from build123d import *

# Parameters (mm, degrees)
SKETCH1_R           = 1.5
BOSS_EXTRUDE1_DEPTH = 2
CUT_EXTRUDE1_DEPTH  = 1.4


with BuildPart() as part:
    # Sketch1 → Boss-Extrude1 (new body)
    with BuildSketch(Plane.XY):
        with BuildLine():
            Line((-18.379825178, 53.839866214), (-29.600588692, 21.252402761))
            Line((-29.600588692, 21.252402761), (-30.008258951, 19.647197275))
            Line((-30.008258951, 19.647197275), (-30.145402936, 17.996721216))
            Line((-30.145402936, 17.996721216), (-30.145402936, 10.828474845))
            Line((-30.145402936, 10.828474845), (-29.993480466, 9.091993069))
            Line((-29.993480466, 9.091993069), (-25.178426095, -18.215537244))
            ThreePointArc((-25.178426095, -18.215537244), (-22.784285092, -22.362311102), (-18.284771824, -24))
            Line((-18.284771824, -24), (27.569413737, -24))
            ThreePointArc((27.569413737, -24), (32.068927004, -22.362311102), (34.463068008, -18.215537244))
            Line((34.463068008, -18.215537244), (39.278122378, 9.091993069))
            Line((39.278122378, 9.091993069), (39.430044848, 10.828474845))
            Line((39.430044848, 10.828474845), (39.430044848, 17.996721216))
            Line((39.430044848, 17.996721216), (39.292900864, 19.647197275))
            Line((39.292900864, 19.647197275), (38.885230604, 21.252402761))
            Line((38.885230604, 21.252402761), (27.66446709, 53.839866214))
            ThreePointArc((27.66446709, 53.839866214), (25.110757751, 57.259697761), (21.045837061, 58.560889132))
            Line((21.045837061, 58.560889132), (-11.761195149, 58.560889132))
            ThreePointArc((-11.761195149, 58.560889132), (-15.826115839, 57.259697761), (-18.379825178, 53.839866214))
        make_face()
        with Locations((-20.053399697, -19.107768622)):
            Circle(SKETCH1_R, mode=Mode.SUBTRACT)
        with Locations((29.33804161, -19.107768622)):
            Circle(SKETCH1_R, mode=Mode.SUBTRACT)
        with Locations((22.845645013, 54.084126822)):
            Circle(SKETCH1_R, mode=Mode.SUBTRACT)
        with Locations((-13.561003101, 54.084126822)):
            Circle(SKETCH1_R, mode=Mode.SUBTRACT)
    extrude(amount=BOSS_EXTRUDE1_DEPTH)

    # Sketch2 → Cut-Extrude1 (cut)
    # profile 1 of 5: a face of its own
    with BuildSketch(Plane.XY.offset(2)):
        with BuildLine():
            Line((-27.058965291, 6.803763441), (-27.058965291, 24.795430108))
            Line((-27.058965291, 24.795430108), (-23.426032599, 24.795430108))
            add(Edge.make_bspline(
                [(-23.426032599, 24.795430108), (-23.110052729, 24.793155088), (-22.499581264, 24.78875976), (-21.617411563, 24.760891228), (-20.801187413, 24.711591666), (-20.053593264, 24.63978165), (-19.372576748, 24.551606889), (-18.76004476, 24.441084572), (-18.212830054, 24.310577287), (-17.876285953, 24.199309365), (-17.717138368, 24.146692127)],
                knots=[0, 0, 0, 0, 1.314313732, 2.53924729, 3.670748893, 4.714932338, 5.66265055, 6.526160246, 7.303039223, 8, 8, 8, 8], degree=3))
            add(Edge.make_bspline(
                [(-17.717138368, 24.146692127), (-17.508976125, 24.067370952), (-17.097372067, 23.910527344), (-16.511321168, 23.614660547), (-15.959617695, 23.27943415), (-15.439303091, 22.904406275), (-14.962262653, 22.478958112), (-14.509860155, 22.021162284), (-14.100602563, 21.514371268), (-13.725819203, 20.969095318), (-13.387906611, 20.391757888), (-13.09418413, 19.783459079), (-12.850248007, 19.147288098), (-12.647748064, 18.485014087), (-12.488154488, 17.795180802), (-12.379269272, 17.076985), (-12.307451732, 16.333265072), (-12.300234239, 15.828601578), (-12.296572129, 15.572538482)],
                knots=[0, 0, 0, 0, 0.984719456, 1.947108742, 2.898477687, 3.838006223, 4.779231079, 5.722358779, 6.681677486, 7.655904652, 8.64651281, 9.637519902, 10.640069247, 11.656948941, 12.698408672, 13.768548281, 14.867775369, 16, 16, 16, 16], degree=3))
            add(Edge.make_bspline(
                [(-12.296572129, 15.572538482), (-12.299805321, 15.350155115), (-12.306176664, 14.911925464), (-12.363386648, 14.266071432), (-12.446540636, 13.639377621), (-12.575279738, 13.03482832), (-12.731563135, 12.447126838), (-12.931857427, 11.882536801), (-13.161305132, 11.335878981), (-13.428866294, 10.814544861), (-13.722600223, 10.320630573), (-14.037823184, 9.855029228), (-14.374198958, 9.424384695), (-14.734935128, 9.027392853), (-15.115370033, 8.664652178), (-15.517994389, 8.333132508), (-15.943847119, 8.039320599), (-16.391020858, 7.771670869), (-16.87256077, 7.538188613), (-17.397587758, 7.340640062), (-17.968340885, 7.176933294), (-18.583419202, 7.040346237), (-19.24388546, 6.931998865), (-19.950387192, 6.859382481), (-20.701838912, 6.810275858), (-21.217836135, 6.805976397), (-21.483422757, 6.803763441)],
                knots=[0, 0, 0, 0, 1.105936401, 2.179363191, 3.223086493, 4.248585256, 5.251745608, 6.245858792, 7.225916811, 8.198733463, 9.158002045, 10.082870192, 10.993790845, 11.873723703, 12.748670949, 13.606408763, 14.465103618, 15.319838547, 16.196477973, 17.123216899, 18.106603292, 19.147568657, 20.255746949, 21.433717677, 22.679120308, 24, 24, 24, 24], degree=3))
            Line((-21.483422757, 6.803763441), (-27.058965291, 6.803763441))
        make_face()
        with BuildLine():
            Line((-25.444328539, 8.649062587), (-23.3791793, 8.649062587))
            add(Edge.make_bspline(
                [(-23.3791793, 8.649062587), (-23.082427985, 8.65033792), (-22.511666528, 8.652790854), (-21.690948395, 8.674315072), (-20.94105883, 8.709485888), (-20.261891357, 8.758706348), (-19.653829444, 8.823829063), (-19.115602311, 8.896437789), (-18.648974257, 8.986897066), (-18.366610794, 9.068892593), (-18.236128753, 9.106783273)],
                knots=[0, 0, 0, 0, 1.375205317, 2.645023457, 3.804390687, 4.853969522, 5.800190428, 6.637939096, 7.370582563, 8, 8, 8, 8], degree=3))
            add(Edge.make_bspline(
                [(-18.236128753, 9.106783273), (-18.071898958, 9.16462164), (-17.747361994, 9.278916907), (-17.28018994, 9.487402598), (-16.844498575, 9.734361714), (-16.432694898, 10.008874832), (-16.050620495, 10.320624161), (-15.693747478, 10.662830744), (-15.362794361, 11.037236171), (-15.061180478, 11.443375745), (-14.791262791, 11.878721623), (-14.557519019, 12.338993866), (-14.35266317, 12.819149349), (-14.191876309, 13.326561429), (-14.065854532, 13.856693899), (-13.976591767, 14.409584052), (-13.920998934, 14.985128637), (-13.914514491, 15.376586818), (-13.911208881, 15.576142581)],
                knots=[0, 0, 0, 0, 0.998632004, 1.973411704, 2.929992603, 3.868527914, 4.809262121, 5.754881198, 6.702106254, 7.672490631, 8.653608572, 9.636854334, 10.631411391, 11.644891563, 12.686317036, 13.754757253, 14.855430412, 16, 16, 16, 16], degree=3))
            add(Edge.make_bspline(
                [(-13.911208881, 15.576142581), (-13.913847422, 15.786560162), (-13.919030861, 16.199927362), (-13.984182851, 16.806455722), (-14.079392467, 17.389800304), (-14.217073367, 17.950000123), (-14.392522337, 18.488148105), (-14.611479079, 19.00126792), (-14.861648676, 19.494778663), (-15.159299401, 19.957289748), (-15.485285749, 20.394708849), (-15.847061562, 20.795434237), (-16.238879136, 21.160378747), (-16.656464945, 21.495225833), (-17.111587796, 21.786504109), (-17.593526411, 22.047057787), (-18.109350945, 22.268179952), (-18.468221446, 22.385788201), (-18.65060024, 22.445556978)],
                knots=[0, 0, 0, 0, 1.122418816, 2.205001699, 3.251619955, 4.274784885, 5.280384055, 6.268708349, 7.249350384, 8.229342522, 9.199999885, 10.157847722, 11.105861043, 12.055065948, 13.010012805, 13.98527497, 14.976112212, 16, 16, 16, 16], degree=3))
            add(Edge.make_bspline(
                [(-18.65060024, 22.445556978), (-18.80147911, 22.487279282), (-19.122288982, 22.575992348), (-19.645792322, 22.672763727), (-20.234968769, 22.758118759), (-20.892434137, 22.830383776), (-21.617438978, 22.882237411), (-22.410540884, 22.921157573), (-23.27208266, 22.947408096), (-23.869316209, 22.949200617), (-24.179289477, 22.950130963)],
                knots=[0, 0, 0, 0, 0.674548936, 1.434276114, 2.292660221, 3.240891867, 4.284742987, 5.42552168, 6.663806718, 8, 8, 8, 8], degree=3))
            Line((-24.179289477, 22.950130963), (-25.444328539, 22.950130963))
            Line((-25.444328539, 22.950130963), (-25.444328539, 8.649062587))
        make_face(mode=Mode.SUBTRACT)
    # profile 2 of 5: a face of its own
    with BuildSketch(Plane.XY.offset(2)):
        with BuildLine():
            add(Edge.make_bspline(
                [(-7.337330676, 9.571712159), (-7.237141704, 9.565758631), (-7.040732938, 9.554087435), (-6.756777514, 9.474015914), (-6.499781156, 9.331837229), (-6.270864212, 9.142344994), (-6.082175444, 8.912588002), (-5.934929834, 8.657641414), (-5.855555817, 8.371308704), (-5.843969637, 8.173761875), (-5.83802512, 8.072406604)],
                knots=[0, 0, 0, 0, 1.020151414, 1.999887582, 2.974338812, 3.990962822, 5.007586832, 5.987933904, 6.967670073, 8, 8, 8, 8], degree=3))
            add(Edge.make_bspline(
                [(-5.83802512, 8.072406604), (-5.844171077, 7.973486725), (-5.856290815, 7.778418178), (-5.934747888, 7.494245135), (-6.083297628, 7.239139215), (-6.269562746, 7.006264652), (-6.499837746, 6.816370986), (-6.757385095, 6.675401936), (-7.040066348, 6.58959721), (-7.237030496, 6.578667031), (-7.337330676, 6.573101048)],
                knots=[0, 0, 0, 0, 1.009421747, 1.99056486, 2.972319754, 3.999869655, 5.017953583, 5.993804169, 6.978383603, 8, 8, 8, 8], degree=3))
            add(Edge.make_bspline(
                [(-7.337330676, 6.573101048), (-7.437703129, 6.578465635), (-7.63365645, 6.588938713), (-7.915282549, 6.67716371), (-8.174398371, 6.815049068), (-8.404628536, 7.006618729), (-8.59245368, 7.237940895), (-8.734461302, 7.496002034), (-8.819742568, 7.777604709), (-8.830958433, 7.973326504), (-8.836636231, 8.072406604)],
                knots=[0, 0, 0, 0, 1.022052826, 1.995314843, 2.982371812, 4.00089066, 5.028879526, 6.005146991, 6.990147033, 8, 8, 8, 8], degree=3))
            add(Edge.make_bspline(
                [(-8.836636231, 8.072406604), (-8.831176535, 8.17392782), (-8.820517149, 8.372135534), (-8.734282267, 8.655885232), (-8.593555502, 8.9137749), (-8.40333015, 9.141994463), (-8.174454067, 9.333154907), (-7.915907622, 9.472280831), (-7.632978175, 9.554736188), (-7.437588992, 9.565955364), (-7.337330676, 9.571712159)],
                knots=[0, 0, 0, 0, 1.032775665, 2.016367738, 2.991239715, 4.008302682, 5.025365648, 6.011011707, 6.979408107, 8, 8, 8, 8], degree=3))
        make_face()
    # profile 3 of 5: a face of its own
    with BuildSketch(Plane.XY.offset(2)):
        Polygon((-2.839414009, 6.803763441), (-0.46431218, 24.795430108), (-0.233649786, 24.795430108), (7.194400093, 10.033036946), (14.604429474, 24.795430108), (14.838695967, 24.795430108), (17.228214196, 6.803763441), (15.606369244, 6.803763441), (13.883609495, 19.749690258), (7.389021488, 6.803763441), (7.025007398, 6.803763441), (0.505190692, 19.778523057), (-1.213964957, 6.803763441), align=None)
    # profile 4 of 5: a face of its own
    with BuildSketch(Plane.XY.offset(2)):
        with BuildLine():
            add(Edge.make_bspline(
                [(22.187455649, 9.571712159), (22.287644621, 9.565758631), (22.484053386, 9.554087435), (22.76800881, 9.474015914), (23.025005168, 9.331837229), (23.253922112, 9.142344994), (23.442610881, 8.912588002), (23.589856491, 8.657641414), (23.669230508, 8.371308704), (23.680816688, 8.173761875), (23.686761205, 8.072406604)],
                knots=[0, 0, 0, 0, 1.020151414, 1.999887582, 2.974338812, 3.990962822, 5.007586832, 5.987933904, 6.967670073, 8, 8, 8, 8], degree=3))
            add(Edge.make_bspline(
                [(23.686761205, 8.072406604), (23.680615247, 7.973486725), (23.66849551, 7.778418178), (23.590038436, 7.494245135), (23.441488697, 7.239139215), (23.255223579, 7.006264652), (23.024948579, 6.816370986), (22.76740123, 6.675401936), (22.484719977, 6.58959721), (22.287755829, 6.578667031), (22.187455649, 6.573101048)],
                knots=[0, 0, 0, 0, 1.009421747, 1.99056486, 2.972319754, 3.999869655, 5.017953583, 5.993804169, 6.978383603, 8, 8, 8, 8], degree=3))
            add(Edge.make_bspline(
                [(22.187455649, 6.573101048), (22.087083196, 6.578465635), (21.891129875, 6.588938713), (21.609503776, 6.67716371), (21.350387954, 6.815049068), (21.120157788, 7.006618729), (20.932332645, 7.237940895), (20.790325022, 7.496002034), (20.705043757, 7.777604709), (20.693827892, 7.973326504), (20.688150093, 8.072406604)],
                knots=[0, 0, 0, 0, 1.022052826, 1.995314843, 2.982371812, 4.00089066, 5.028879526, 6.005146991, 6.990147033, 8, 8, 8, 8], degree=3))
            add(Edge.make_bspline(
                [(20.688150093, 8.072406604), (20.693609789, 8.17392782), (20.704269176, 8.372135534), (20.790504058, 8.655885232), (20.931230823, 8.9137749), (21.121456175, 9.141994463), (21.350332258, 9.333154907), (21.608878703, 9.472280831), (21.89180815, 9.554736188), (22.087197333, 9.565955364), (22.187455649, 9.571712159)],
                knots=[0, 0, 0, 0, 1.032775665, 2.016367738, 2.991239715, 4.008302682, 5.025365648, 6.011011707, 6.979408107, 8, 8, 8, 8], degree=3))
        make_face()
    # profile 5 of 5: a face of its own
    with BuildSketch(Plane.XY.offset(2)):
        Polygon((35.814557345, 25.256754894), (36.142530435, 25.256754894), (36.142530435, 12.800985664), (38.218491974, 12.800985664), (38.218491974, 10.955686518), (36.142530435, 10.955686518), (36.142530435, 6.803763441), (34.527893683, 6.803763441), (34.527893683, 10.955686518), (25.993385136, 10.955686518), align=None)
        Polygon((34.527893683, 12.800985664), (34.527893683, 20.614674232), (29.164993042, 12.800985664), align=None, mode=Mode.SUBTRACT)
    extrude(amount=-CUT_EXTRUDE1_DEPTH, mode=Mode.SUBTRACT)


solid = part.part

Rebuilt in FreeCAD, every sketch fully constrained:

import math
import FreeCAD as App
import Part
import Sketcher
from FreeCAD import Vector
Q = App.Units.Quantity

doc = App.newDocument("Part")
body = doc.addObject("PartDesign::Body", "Body")

# Sketch on XY plane
sketch1 = body.newObject("Sketcher::SketchObject", "Sketch")
sketch1.AttachmentSupport = (doc.getObject("XY_Plane"), [""])
sketch1.MapMode = "FlatFace"
sketch1.addGeometry(Part.LineSegment(Vector(-18.379825, 53.839866, 0), Vector(-29.600589, 21.252403, 0)), False)
sketch1.addGeometry(Part.LineSegment(Vector(-29.600589, 21.252403, 0), Vector(-30.008259, 19.647197, 0)), False)
sketch1.addGeometry(Part.LineSegment(Vector(-30.008259, 19.647197, 0), Vector(-30.145403, 17.996721, 0)), False)
sketch1.addGeometry(Part.LineSegment(Vector(-30.145403, 17.996721, 0), Vector(-30.145403, 10.828475, 0)), False)
sketch1.addGeometry(Part.LineSegment(Vector(-30.145403, 10.828475, 0), Vector(-29.99348, 9.091993, 0)), False)
sketch1.addGeometry(Part.LineSegment(Vector(-29.99348, 9.091993, 0), Vector(-25.178426, -18.215537, 0)), False)
sketch1.addGeometry(Part.ArcOfCircle(Part.Circle(Vector(-18.284772, -17, 0), Vector(0, 0, 1), 7), math.radians(-170), math.radians(-90)), False)
sketch1.addGeometry(Part.LineSegment(Vector(-18.284772, -24, 0), Vector(27.569414, -24, 0)), False)
sketch1.addGeometry(Part.ArcOfCircle(Part.Circle(Vector(27.569414, -17, 0), Vector(0, 0, 1), 7), math.radians(-90), math.radians(-10)), False)
sketch1.addGeometry(Part.LineSegment(Vector(34.463068, -18.215537, 0), Vector(39.278122, 9.091993, 0)), False)
sketch1.addGeometry(Part.LineSegment(Vector(39.278122, 9.091993, 0), Vector(39.430045, 10.828475, 0)), False)
sketch1.addGeometry(Part.LineSegment(Vector(39.430045, 10.828475, 0), Vector(39.430045, 17.996721, 0)), False)
sketch1.addGeometry(Part.LineSegment(Vector(39.430045, 17.996721, 0), Vector(39.292901, 19.647197, 0)), False)
sketch1.addGeometry(Part.LineSegment(Vector(39.292901, 19.647197, 0), Vector(38.885231, 21.252403, 0)), False)
sketch1.addGeometry(Part.LineSegment(Vector(38.885231, 21.252403, 0), Vector(27.664467, 53.839866, 0)), False)
sketch1.addGeometry(Part.ArcOfCircle(Part.Circle(Vector(21.045837, 51.560889, 0), Vector(0, 0, 1), 7), math.radians(19), math.radians(90)), False)
sketch1.addGeometry(Part.LineSegment(Vector(21.045837, 58.560889, 0), Vector(-11.761195, 58.560889, 0)), False)
sketch1.addGeometry(Part.ArcOfCircle(Part.Circle(Vector(-11.761195, 51.560889, 0), Vector(0, 0, 1), 7), math.radians(90), math.radians(161)), False)
sketch1.addGeometry(Part.Circle(Vector(-20.0534, -19.107769, 0), Vector(0, 0, 1), 1.5), False)
sketch1.addGeometry(Part.Circle(Vector(29.338042, -19.107769, 0), Vector(0, 0, 1), 1.5), False)
sketch1.addGeometry(Part.Circle(Vector(-13.561003, 54.084127, 0), Vector(0, 0, 1), 1.5), False)
sketch1.addGeometry(Part.Circle(Vector(22.845645, 54.084127, 0), Vector(0, 0, 1), 1.5), False)
sketch1.addConstraint(Sketcher.Constraint("Coincident", 0, 2, 1, 1))
sketch1.addConstraint(Sketcher.Constraint("Coincident", 1, 2, 2, 1))
sketch1.addConstraint(Sketcher.Constraint("Coincident", 2, 2, 3, 1))
sketch1.addConstraint(Sketcher.Constraint("Coincident", 3, 2, 4, 1))
sketch1.addConstraint(Sketcher.Constraint("Coincident", 4, 2, 5, 1))
sketch1.addConstraint(Sketcher.Constraint("Tangent", 5, 2, 6, 1))
sketch1.addConstraint(Sketcher.Constraint("Tangent", 6, 2, 7, 1))
sketch1.addConstraint(Sketcher.Constraint("Tangent", 7, 2, 8, 1))
sketch1.addConstraint(Sketcher.Constraint("Tangent", 8, 2, 9, 1))
sketch1.addConstraint(Sketcher.Constraint("Coincident", 9, 2, 10, 1))
sketch1.addConstraint(Sketcher.Constraint("Coincident", 10, 2, 11, 1))
sketch1.addConstraint(Sketcher.Constraint("Coincident", 11, 2, 12, 1))
sketch1.addConstraint(Sketcher.Constraint("Coincident", 12, 2, 13, 1))
sketch1.addConstraint(Sketcher.Constraint("Coincident", 13, 2, 14, 1))
sketch1.addConstraint(Sketcher.Constraint("Tangent", 14, 2, 15, 1))
sketch1.addConstraint(Sketcher.Constraint("Tangent", 15, 2, 16, 1))
sketch1.addConstraint(Sketcher.Constraint("Tangent", 16, 2, 17, 1))
sketch1.addConstraint(Sketcher.Constraint("Tangent", 17, 2, 0, 1))
sketch1.addConstraint(Sketcher.Constraint("Vertical", 3))
sketch1.addConstraint(Sketcher.Constraint("Horizontal", 7))
sketch1.addConstraint(Sketcher.Constraint("Vertical", 11))
sketch1.addConstraint(Sketcher.Constraint("Horizontal", 16))
sketch1.addConstraint(Sketcher.Constraint("Equal", 6, 8))
sketch1.addConstraint(Sketcher.Constraint("Equal", 8, 15))
sketch1.addConstraint(Sketcher.Constraint("Equal", 15, 17))
sketch1.addConstraint(Sketcher.Constraint("Equal", 18, 19))
sketch1.addConstraint(Sketcher.Constraint("Equal", 19, 20))
sketch1.addConstraint(Sketcher.Constraint("Equal", 20, 21))
sketch1.addConstraint(Sketcher.Constraint("Horizontal", 18, 3, 19, 3))
sketch1.addConstraint(Sketcher.Constraint("Horizontal", 20, 3, 21, 3))
sketch1.addConstraint(Sketcher.Constraint("Horizontal", 5, 2, 8, 2))
sketch1.addConstraint(Sketcher.Constraint("Horizontal", 4, 2, 9, 2))
sketch1.addConstraint(Sketcher.Constraint("Horizontal", 3, 2, 10, 2))
sketch1.addConstraint(Sketcher.Constraint("Horizontal", 2, 2, 11, 2))
sketch1.addConstraint(Sketcher.Constraint("Horizontal", 1, 2, 12, 2))
sketch1.addConstraint(Sketcher.Constraint("Horizontal", 0, 2, 13, 2))
sketch1.addConstraint(Sketcher.Constraint("Horizontal", 14, 2, 17, 2))
sketch1.addConstraint(Sketcher.Constraint("Equal", 1, 2))
sketch1.addConstraint(Sketcher.Constraint("Equal", 4, 10))
sketch1.addConstraint(Sketcher.Constraint("Equal", 2, 12))
sketch1.addConstraint(Sketcher.Constraint("Equal", 12, 13))
sketch1.addConstraint(Sketcher.Constraint("Diameter", 18, Q("3 mm")))
sketch1.addConstraint(Sketcher.Constraint("Radius", 6, Q("7 mm")))
sketch1.addConstraint(Sketcher.Constraint("Angle", 0, Q("-109 deg")))
sketch1.addConstraint(Sketcher.Constraint("Angle", 4, Q("-85 deg")))
sketch1.addConstraint(Sketcher.Constraint("Angle", 5, Q("-80 deg")))
sketch1.addConstraint(Sketcher.Constraint("DistanceY", 6, 3, -1, 1, Q("17 mm")))
sketch1.addConstraint(Sketcher.Constraint("Angle", 1, Q("-104.25 deg")))
sketch1.addConstraint(Sketcher.Constraint("Angle", 2, Q("-94.75 deg")))
sketch1.addConstraint(Sketcher.Constraint("DistanceX", 18, 3, -1, 1, Q("20.0534 mm")))
sketch1.addConstraint(Sketcher.Constraint("DistanceX", -1, 1, 12, 2, Q("39.292901 mm")))
sketch1.addConstraint(Sketcher.Constraint("DistanceX", 7, 1, 7, 2, Q("45.854186 mm")))
sketch1.addConstraint(Sketcher.Constraint("DistanceX", 16, 2, 16, 1, Q("32.807032 mm")))
sketch1.addConstraint(Sketcher.Constraint("DistanceY", 3, 2, 3, 1, Q("7.168246 mm")))
sketch1.addConstraint(Sketcher.Constraint("DistanceX", 6, 3, -1, 1, Q("18.284772 mm")))
sketch1.addConstraint(Sketcher.Constraint("DistanceY", -1, 1, 15, 3, Q("51.560889 mm")))
sketch1.addConstraint(Sketcher.Constraint("DistanceY", 18, 3, -1, 1, Q("19.107769 mm")))
sketch1.addConstraint(Sketcher.Constraint("DistanceX", -1, 1, 19, 3, Q("29.338042 mm")))
sketch1.addConstraint(Sketcher.Constraint("DistanceX", 0, 2, -1, 1, Q("29.600589 mm")))
sketch1.addConstraint(Sketcher.Constraint("DistanceX", 20, 3, 15, 3, Q("34.60684 mm")))
sketch1.addConstraint(Sketcher.Constraint("DistanceX", 17, 3, 21, 3, Q("34.60684 mm")))
sketch1.addConstraint(Sketcher.Constraint("DistanceY", 1, 2, 20, 3, Q("34.43693 mm")))
pad1 = body.newObject("PartDesign::Pad", "Pad")
pad1.Profile = sketch1
pad1.Length = 2

# Sketch on XY plane
sketch2 = body.newObject("Sketcher::SketchObject", "Sketch001")
sketch2.AttachmentSupport = (doc.getObject("XY_Plane"), [""])
sketch2.MapMode = "FlatFace"
sketch2.AttachmentOffset = App.Placement(Vector(0, 0, 2), App.Rotation())
sketch2.addGeometry(Part.LineSegment(Vector(-27.058965, 24.79543, 0), Vector(-27.058965, 6.803763, 0)), False)
sketch2.addGeometry(Part.LineSegment(Vector(-27.058965, 6.803763, 0), Vector(-21.483423, 6.803763, 0)), False)
sketch2.addGeometry(Part.BSplineCurve([Vector(-12.296572, 15.572538, 0), Vector(-12.299805, 15.350155, 0), Vector(-12.306177, 14.911925, 0), Vector(-12.363387, 14.266071, 0), Vector(-12.446541, 13.639378, 0), Vector(-12.57528, 13.034828, 0), Vector(-12.731563, 12.447127, 0), Vector(-12.931857, 11.882537, 0), Vector(-13.161305, 11.335879, 0), Vector(-13.428866, 10.814545, 0), Vector(-13.7226, 10.320631, 0), Vector(-14.037823, 9.855029, 0), Vector(-14.374199, 9.424385, 0), Vector(-14.734935, 9.027393, 0), Vector(-15.11537, 8.664652, 0), Vector(-15.517994, 8.333133, 0), Vector(-15.943847, 8.039321, 0), Vector(-16.391021, 7.771671, 0), Vector(-16.872561, 7.538189, 0), Vector(-17.397588, 7.34064, 0), Vector(-17.968341, 7.176933, 0), Vector(-18.583419, 7.040346, 0), Vector(-19.243885, 6.931999, 0), Vector(-19.950387, 6.859382, 0), Vector(-20.701839, 6.810276, 0), Vector(-21.217836, 6.805976, 0), Vector(-21.483423, 6.803763, 0)], [4, 1, 1, 1, 1, 1, 1, 1, 1, 1, 1, 1, 1, 1, 1, 1, 1, 1, 1, 1, 1, 1, 1, 1, 4], [0, 1.105936401, 2.179363191, 3.223086493, 4.248585256, 5.251745608, 6.245858792, 7.225916811, 8.198733463, 9.158002045, 10.082870192, 10.993790845, 11.873723703, 12.748670949, 13.606408763, 14.465103618, 15.319838547, 16.196477973, 17.123216899, 18.106603292, 19.147568657, 20.255746949, 21.433717677, 22.679120308, 24], False, 3, [1, 1, 1, 1, 1, 1, 1, 1, 1, 1, 1, 1, 1, 1, 1, 1, 1, 1, 1, 1, 1, 1, 1, 1, 1, 1, 1], False), False)
sketch2.addGeometry(Part.BSplineCurve([Vector(-17.717138, 24.146692, 0), Vector(-17.508976, 24.067371, 0), Vector(-17.097372, 23.910527, 0), Vector(-16.511321, 23.614661, 0), Vector(-15.959618, 23.279434, 0), Vector(-15.439303, 22.904406, 0), Vector(-14.962263, 22.478958, 0), Vector(-14.50986, 22.021162, 0), Vector(-14.100603, 21.514371, 0), Vector(-13.725819, 20.969095, 0), Vector(-13.387907, 20.391758, 0), Vector(-13.094184, 19.783459, 0), Vector(-12.850248, 19.147288, 0), Vector(-12.647748, 18.485014, 0), Vector(-12.488154, 17.795181, 0), Vector(-12.379269, 17.076985, 0), Vector(-12.307452, 16.333265, 0), Vector(-12.300234, 15.828602, 0), Vector(-12.296572, 15.572538, 0)], [4, 1, 1, 1, 1, 1, 1, 1, 1, 1, 1, 1, 1, 1, 1, 1, 4], [0, 0.984719456, 1.947108742, 2.898477687, 3.838006223, 4.779231079, 5.722358779, 6.681677486, 7.655904652, 8.64651281, 9.637519902, 10.640069247, 11.656948941, 12.698408672, 13.768548281, 14.867775369, 16], False, 3, [1, 1, 1, 1, 1, 1, 1, 1, 1, 1, 1, 1, 1, 1, 1, 1, 1, 1, 1], False), False)
sketch2.addGeometry(Part.BSplineCurve([Vector(-23.426033, 24.79543, 0), Vector(-23.110053, 24.793155, 0), Vector(-22.499581, 24.78876, 0), Vector(-21.617412, 24.760891, 0), Vector(-20.801187, 24.711592, 0), Vector(-20.053593, 24.639782, 0), Vector(-19.372577, 24.551607, 0), Vector(-18.760045, 24.441085, 0), Vector(-18.21283, 24.310577, 0), Vector(-17.876286, 24.199309, 0), Vector(-17.717138, 24.146692, 0)], [4, 1, 1, 1, 1, 1, 1, 1, 4], [0, 1.314313732, 2.53924729, 3.670748893, 4.714932338, 5.66265055, 6.526160246, 7.303039223, 8], False, 3, [1, 1, 1, 1, 1, 1, 1, 1, 1, 1, 1], False), False)
sketch2.addGeometry(Part.LineSegment(Vector(-23.426033, 24.79543, 0), Vector(-27.058965, 24.79543, 0)), False)
sketch2.addGeometry(Part.LineSegment(Vector(-25.444329, 8.649063, 0), Vector(-25.444329, 22.950131, 0)), False)
sketch2.addGeometry(Part.LineSegment(Vector(-25.444329, 22.950131, 0), Vector(-24.179289, 22.950131, 0)), False)
sketch2.addGeometry(Part.BSplineCurve([Vector(-18.6506, 22.445557, 0), Vector(-18.801479, 22.487279, 0), Vector(-19.122289, 22.575992, 0), Vector(-19.645792, 22.672764, 0), Vector(-20.234969, 22.758119, 0), Vector(-20.892434, 22.830384, 0), Vector(-21.617439, 22.882237, 0), Vector(-22.410541, 22.921158, 0), Vector(-23.272083, 22.947408, 0), Vector(-23.869316, 22.949201, 0), Vector(-24.179289, 22.950131, 0)], [4, 1, 1, 1, 1, 1, 1, 1, 4], [0, 0.674548936, 1.434276114, 2.292660221, 3.240891867, 4.284742987, 5.42552168, 6.663806718, 8], False, 3, [1, 1, 1, 1, 1, 1, 1, 1, 1, 1, 1], False), False)
sketch2.addGeometry(Part.BSplineCurve([Vector(-13.911209, 15.576143, 0), Vector(-13.913847, 15.78656, 0), Vector(-13.919031, 16.199927, 0), Vector(-13.984183, 16.806456, 0), Vector(-14.079392, 17.3898, 0), Vector(-14.217073, 17.95, 0), Vector(-14.392522, 18.488148, 0), Vector(-14.611479, 19.001268, 0), Vector(-14.861649, 19.494779, 0), Vector(-15.159299, 19.95729, 0), Vector(-15.485286, 20.394709, 0), Vector(-15.847062, 20.795434, 0), Vector(-16.238879, 21.160379, 0), Vector(-16.656465, 21.495226, 0), Vector(-17.111588, 21.786504, 0), Vector(-17.593526, 22.047058, 0), Vector(-18.109351, 22.26818, 0), Vector(-18.468221, 22.385788, 0), Vector(-18.6506, 22.445557, 0)], [4, 1, 1, 1, 1, 1, 1, 1, 1, 1, 1, 1, 1, 1, 1, 1, 4], [0, 1.122418816, 2.205001699, 3.251619955, 4.274784885, 5.280384055, 6.268708349, 7.249350384, 8.229342522, 9.199999885, 10.157847722, 11.105861043, 12.055065948, 13.010012805, 13.98527497, 14.976112212, 16], False, 3, [1, 1, 1, 1, 1, 1, 1, 1, 1, 1, 1, 1, 1, 1, 1, 1, 1, 1, 1], False), False)
sketch2.addGeometry(Part.BSplineCurve([Vector(-18.236129, 9.106783, 0), Vector(-18.071899, 9.164622, 0), Vector(-17.747362, 9.278917, 0), Vector(-17.28019, 9.487403, 0), Vector(-16.844499, 9.734362, 0), Vector(-16.432695, 10.008875, 0), Vector(-16.05062, 10.320624, 0), Vector(-15.693747, 10.662831, 0), Vector(-15.362794, 11.037236, 0), Vector(-15.06118, 11.443376, 0), Vector(-14.791263, 11.878722, 0), Vector(-14.557519, 12.338994, 0), Vector(-14.352663, 12.819149, 0), Vector(-14.191876, 13.326561, 0), Vector(-14.065855, 13.856694, 0), Vector(-13.976592, 14.409584, 0), Vector(-13.920999, 14.985129, 0), Vector(-13.914514, 15.376587, 0), Vector(-13.911209, 15.576143, 0)], [4, 1, 1, 1, 1, 1, 1, 1, 1, 1, 1, 1, 1, 1, 1, 1, 4], [0, 0.998632004, 1.973411704, 2.929992603, 3.868527914, 4.809262121, 5.754881198, 6.702106254, 7.672490631, 8.653608572, 9.636854334, 10.631411391, 11.644891563, 12.686317036, 13.754757253, 14.855430412, 16], False, 3, [1, 1, 1, 1, 1, 1, 1, 1, 1, 1, 1, 1, 1, 1, 1, 1, 1, 1, 1], False), False)
sketch2.addGeometry(Part.BSplineCurve([Vector(-23.379179, 8.649063, 0), Vector(-23.082428, 8.650338, 0), Vector(-22.511667, 8.652791, 0), Vector(-21.690948, 8.674315, 0), Vector(-20.941059, 8.709486, 0), Vector(-20.261891, 8.758706, 0), Vector(-19.653829, 8.823829, 0), Vector(-19.115602, 8.896438, 0), Vector(-18.648974, 8.986897, 0), Vector(-18.366611, 9.068893, 0), Vector(-18.236129, 9.106783, 0)], [4, 1, 1, 1, 1, 1, 1, 1, 4], [0, 1.375205317, 2.645023457, 3.804390687, 4.853969522, 5.800190428, 6.637939096, 7.370582563, 8], False, 3, [1, 1, 1, 1, 1, 1, 1, 1, 1, 1, 1], False), False)
sketch2.addGeometry(Part.LineSegment(Vector(-23.379179, 8.649063, 0), Vector(-25.444329, 8.649063, 0)), False)
sketch2.addGeometry(Part.BSplineCurve([Vector(-7.337331, 9.571712, 0), Vector(-7.237142, 9.565759, 0), Vector(-7.040733, 9.554087, 0), Vector(-6.756778, 9.474016, 0), Vector(-6.499781, 9.331837, 0), Vector(-6.270864, 9.142345, 0), Vector(-6.082175, 8.912588, 0), Vector(-5.93493, 8.657641, 0), Vector(-5.855556, 8.371309, 0), Vector(-5.84397, 8.173762, 0), Vector(-5.838025, 8.072407, 0)], [4, 1, 1, 1, 1, 1, 1, 1, 4], [0, 1.020151414, 1.999887582, 2.974338812, 3.990962822, 5.007586832, 5.987933904, 6.967670073, 8], False, 3, [1, 1, 1, 1, 1, 1, 1, 1, 1, 1, 1], False), False)
sketch2.addGeometry(Part.BSplineCurve([Vector(-8.836636, 8.072407, 0), Vector(-8.831177, 8.173928, 0), Vector(-8.820517, 8.372136, 0), Vector(-8.734282, 8.655885, 0), Vector(-8.593556, 8.913775, 0), Vector(-8.40333, 9.141994, 0), Vector(-8.174454, 9.333155, 0), Vector(-7.915908, 9.472281, 0), Vector(-7.632978, 9.554736, 0), Vector(-7.437589, 9.565955, 0), Vector(-7.337331, 9.571712, 0)], [4, 1, 1, 1, 1, 1, 1, 1, 4], [0, 1.032775665, 2.016367738, 2.991239715, 4.008302682, 5.025365648, 6.011011707, 6.979408107, 8], False, 3, [1, 1, 1, 1, 1, 1, 1, 1, 1, 1, 1], False), False)
sketch2.addGeometry(Part.BSplineCurve([Vector(-7.337331, 6.573101, 0), Vector(-7.437703, 6.578466, 0), Vector(-7.633656, 6.588939, 0), Vector(-7.915283, 6.677164, 0), Vector(-8.174398, 6.815049, 0), Vector(-8.404629, 7.006619, 0), Vector(-8.592454, 7.237941, 0), Vector(-8.734461, 7.496002, 0), Vector(-8.819743, 7.777605, 0), Vector(-8.830958, 7.973327, 0), Vector(-8.836636, 8.072407, 0)], [4, 1, 1, 1, 1, 1, 1, 1, 4], [0, 1.022052826, 1.995314843, 2.982371812, 4.00089066, 5.028879526, 6.005146991, 6.990147033, 8], False, 3, [1, 1, 1, 1, 1, 1, 1, 1, 1, 1, 1], False), False)
sketch2.addGeometry(Part.BSplineCurve([Vector(-5.838025, 8.072407, 0), Vector(-5.844171, 7.973487, 0), Vector(-5.856291, 7.778418, 0), Vector(-5.934748, 7.494245, 0), Vector(-6.083298, 7.239139, 0), Vector(-6.269563, 7.006265, 0), Vector(-6.499838, 6.816371, 0), Vector(-6.757385, 6.675402, 0), Vector(-7.040066, 6.589597, 0), Vector(-7.23703, 6.578667, 0), Vector(-7.337331, 6.573101, 0)], [4, 1, 1, 1, 1, 1, 1, 1, 4], [0, 1.009421747, 1.99056486, 2.972319754, 3.999869655, 5.017953583, 5.993804169, 6.978383603, 8], False, 3, [1, 1, 1, 1, 1, 1, 1, 1, 1, 1, 1], False), False)
sketch2.addGeometry(Part.LineSegment(Vector(-0.464312, 24.79543, 0), Vector(-2.839414, 6.803763, 0)), False)
sketch2.addGeometry(Part.LineSegment(Vector(-2.839414, 6.803763, 0), Vector(-1.213965, 6.803763, 0)), False)
sketch2.addGeometry(Part.LineSegment(Vector(-1.213965, 6.803763, 0), Vector(0.505191, 19.778523, 0)), False)
sketch2.addGeometry(Part.LineSegment(Vector(0.505191, 19.778523, 0), Vector(7.025007, 6.803763, 0)), False)
sketch2.addGeometry(Part.LineSegment(Vector(7.025007, 6.803763, 0), Vector(7.389021, 6.803763, 0)), False)
sketch2.addGeometry(Part.LineSegment(Vector(7.389021, 6.803763, 0), Vector(13.883609, 19.74969, 0)), False)
sketch2.addGeometry(Part.LineSegment(Vector(13.883609, 19.74969, 0), Vector(15.606369, 6.803763, 0)), False)
sketch2.addGeometry(Part.LineSegment(Vector(15.606369, 6.803763, 0), Vector(17.228214, 6.803763, 0)), False)
sketch2.addGeometry(Part.LineSegment(Vector(17.228214, 6.803763, 0), Vector(14.838696, 24.79543, 0)), False)
sketch2.addGeometry(Part.LineSegment(Vector(14.838696, 24.79543, 0), Vector(14.604429, 24.79543, 0)), False)
sketch2.addGeometry(Part.LineSegment(Vector(14.604429, 24.79543, 0), Vector(7.1944, 10.033037, 0)), False)
sketch2.addGeometry(Part.LineSegment(Vector(7.1944, 10.033037, 0), Vector(-0.23365, 24.79543, 0)), False)
sketch2.addGeometry(Part.LineSegment(Vector(-0.23365, 24.79543, 0), Vector(-0.464312, 24.79543, 0)), False)
sketch2.addGeometry(Part.BSplineCurve([Vector(22.187456, 9.571712, 0), Vector(22.287645, 9.565759, 0), Vector(22.484053, 9.554087, 0), Vector(22.768009, 9.474016, 0), Vector(23.025005, 9.331837, 0), Vector(23.253922, 9.142345, 0), Vector(23.442611, 8.912588, 0), Vector(23.589856, 8.657641, 0), Vector(23.669231, 8.371309, 0), Vector(23.680817, 8.173762, 0), Vector(23.686761, 8.072407, 0)], [4, 1, 1, 1, 1, 1, 1, 1, 4], [0, 1.020151414, 1.999887582, 2.974338812, 3.990962822, 5.007586832, 5.987933904, 6.967670073, 8], False, 3, [1, 1, 1, 1, 1, 1, 1, 1, 1, 1, 1], False), False)
sketch2.addGeometry(Part.BSplineCurve([Vector(20.68815, 8.072407, 0), Vector(20.69361, 8.173928, 0), Vector(20.704269, 8.372136, 0), Vector(20.790504, 8.655885, 0), Vector(20.931231, 8.913775, 0), Vector(21.121456, 9.141994, 0), Vector(21.350332, 9.333155, 0), Vector(21.608879, 9.472281, 0), Vector(21.891808, 9.554736, 0), Vector(22.087197, 9.565955, 0), Vector(22.187456, 9.571712, 0)], [4, 1, 1, 1, 1, 1, 1, 1, 4], [0, 1.032775665, 2.016367738, 2.991239715, 4.008302682, 5.025365648, 6.011011707, 6.979408107, 8], False, 3, [1, 1, 1, 1, 1, 1, 1, 1, 1, 1, 1], False), False)
sketch2.addGeometry(Part.BSplineCurve([Vector(22.187456, 6.573101, 0), Vector(22.087083, 6.578466, 0), Vector(21.89113, 6.588939, 0), Vector(21.609504, 6.677164, 0), Vector(21.350388, 6.815049, 0), Vector(21.120158, 7.006619, 0), Vector(20.932333, 7.237941, 0), Vector(20.790325, 7.496002, 0), Vector(20.705044, 7.777605, 0), Vector(20.693828, 7.973327, 0), Vector(20.68815, 8.072407, 0)], [4, 1, 1, 1, 1, 1, 1, 1, 4], [0, 1.022052826, 1.995314843, 2.982371812, 4.00089066, 5.028879526, 6.005146991, 6.990147033, 8], False, 3, [1, 1, 1, 1, 1, 1, 1, 1, 1, 1, 1], False), False)
sketch2.addGeometry(Part.BSplineCurve([Vector(23.686761, 8.072407, 0), Vector(23.680615, 7.973487, 0), Vector(23.668496, 7.778418, 0), Vector(23.590038, 7.494245, 0), Vector(23.441489, 7.239139, 0), Vector(23.255224, 7.006265, 0), Vector(23.024949, 6.816371, 0), Vector(22.767401, 6.675402, 0), Vector(22.48472, 6.589597, 0), Vector(22.287756, 6.578667, 0), Vector(22.187456, 6.573101, 0)], [4, 1, 1, 1, 1, 1, 1, 1, 4], [0, 1.009421747, 1.99056486, 2.972319754, 3.999869655, 5.017953583, 5.993804169, 6.978383603, 8], False, 3, [1, 1, 1, 1, 1, 1, 1, 1, 1, 1, 1], False), False)
sketch2.addGeometry(Part.LineSegment(Vector(36.14253, 25.256755, 0), Vector(35.814557, 25.256755, 0)), False)
sketch2.addGeometry(Part.LineSegment(Vector(35.814557, 25.256755, 0), Vector(25.993385, 10.955687, 0)), False)
sketch2.addGeometry(Part.LineSegment(Vector(25.993385, 10.955687, 0), Vector(34.527894, 10.955687, 0)), False)
sketch2.addGeometry(Part.LineSegment(Vector(34.527894, 10.955687, 0), Vector(34.527894, 6.803763, 0)), False)
sketch2.addGeometry(Part.LineSegment(Vector(34.527894, 6.803763, 0), Vector(36.14253, 6.803763, 0)), False)
sketch2.addGeometry(Part.LineSegment(Vector(36.14253, 6.803763, 0), Vector(36.14253, 10.955687, 0)), False)
sketch2.addGeometry(Part.LineSegment(Vector(36.14253, 10.955687, 0), Vector(38.218492, 10.955687, 0)), False)
sketch2.addGeometry(Part.LineSegment(Vector(38.218492, 10.955687, 0), Vector(38.218492, 12.800986, 0)), False)
sketch2.addGeometry(Part.LineSegment(Vector(38.218492, 12.800986, 0), Vector(36.14253, 12.800986, 0)), False)
sketch2.addGeometry(Part.LineSegment(Vector(36.14253, 12.800986, 0), Vector(36.14253, 25.256755, 0)), False)
sketch2.addGeometry(Part.LineSegment(Vector(34.527894, 12.800986, 0), Vector(29.164993, 12.800986, 0)), False)
sketch2.addGeometry(Part.LineSegment(Vector(29.164993, 12.800986, 0), Vector(34.527894, 20.614674, 0)), False)
sketch2.addGeometry(Part.LineSegment(Vector(34.527894, 20.614674, 0), Vector(34.527894, 12.800986, 0)), False)
sketch2.addConstraint(Sketcher.Constraint("Block", 2))
sketch2.addConstraint(Sketcher.Constraint("Block", 3))
sketch2.addConstraint(Sketcher.Constraint("Block", 4))
sketch2.addConstraint(Sketcher.Constraint("Block", 8))
sketch2.addConstraint(Sketcher.Constraint("Block", 9))
sketch2.addConstraint(Sketcher.Constraint("Block", 10))
sketch2.addConstraint(Sketcher.Constraint("Block", 11))
sketch2.addConstraint(Sketcher.Constraint("Block", 13))
sketch2.addConstraint(Sketcher.Constraint("Block", 14))
sketch2.addConstraint(Sketcher.Constraint("Block", 15))
sketch2.addConstraint(Sketcher.Constraint("Block", 16))
sketch2.addConstraint(Sketcher.Constraint("Block", 30))
sketch2.addConstraint(Sketcher.Constraint("Block", 31))
sketch2.addConstraint(Sketcher.Constraint("Block", 32))
sketch2.addConstraint(Sketcher.Constraint("Block", 33))
sketch2.addConstraint(Sketcher.Constraint("Coincident", 0, 2, 1, 1))
sketch2.addConstraint(Sketcher.Constraint("Coincident", 1, 2, 2, 2))
sketch2.addConstraint(Sketcher.Constraint("Coincident", 4, 1, 5, 1))
sketch2.addConstraint(Sketcher.Constraint("Coincident", 5, 2, 0, 1))
sketch2.addConstraint(Sketcher.Constraint("Coincident", 6, 2, 7, 1))
sketch2.addConstraint(Sketcher.Constraint("Coincident", 7, 2, 8, 2))
sketch2.addConstraint(Sketcher.Constraint("Coincident", 11, 1, 12, 1))
sketch2.addConstraint(Sketcher.Constraint("Coincident", 12, 2, 6, 1))
sketch2.addConstraint(Sketcher.Constraint("Coincident", 17, 2, 18, 1))
sketch2.addConstraint(Sketcher.Constraint("Coincident", 18, 2, 19, 1))
sketch2.addConstraint(Sketcher.Constraint("Coincident", 19, 2, 20, 1))
sketch2.addConstraint(Sketcher.Constraint("Coincident", 20, 2, 21, 1))
sketch2.addConstraint(Sketcher.Constraint("Coincident", 21, 2, 22, 1))
sketch2.addConstraint(Sketcher.Constraint("Coincident", 22, 2, 23, 1))
sketch2.addConstraint(Sketcher.Constraint("Coincident", 23, 2, 24, 1))
sketch2.addConstraint(Sketcher.Constraint("Coincident", 24, 2, 25, 1))
sketch2.addConstraint(Sketcher.Constraint("Coincident", 25, 2, 26, 1))
sketch2.addConstraint(Sketcher.Constraint("Coincident", 26, 2, 27, 1))
sketch2.addConstraint(Sketcher.Constraint("Coincident", 27, 2, 28, 1))
sketch2.addConstraint(Sketcher.Constraint("Coincident", 28, 2, 29, 1))
sketch2.addConstraint(Sketcher.Constraint("Coincident", 29, 2, 17, 1))
sketch2.addConstraint(Sketcher.Constraint("Coincident", 34, 2, 35, 1))
sketch2.addConstraint(Sketcher.Constraint("Coincident", 35, 2, 36, 1))
sketch2.addConstraint(Sketcher.Constraint("Coincident", 36, 2, 37, 1))
sketch2.addConstraint(Sketcher.Constraint("Coincident", 37, 2, 38, 1))
sketch2.addConstraint(Sketcher.Constraint("Coincident", 38, 2, 39, 1))
sketch2.addConstraint(Sketcher.Constraint("Coincident", 39, 2, 40, 1))
sketch2.addConstraint(Sketcher.Constraint("Coincident", 40, 2, 41, 1))
sketch2.addConstraint(Sketcher.Constraint("Coincident", 41, 2, 42, 1))
sketch2.addConstraint(Sketcher.Constraint("Coincident", 42, 2, 43, 1))
sketch2.addConstraint(Sketcher.Constraint("Coincident", 43, 2, 34, 1))
sketch2.addConstraint(Sketcher.Constraint("Coincident", 44, 2, 45, 1))
sketch2.addConstraint(Sketcher.Constraint("Coincident", 45, 2, 46, 1))
sketch2.addConstraint(Sketcher.Constraint("Coincident", 46, 2, 44, 1))
sketch2.addConstraint(Sketcher.Constraint("Vertical", 0))
sketch2.addConstraint(Sketcher.Constraint("Horizontal", 1))
sketch2.addConstraint(Sketcher.Constraint("Horizontal", 5))
sketch2.addConstraint(Sketcher.Constraint("Vertical", 6))
sketch2.addConstraint(Sketcher.Constraint("Horizontal", 7))
sketch2.addConstraint(Sketcher.Constraint("Horizontal", 12))
sketch2.addConstraint(Sketcher.Constraint("Horizontal", 18))
sketch2.addConstraint(Sketcher.Constraint("Horizontal", 21))
sketch2.addConstraint(Sketcher.Constraint("Horizontal", 24))
sketch2.addConstraint(Sketcher.Constraint("Horizontal", 26))
sketch2.addConstraint(Sketcher.Constraint("Horizontal", 29))
sketch2.addConstraint(Sketcher.Constraint("Horizontal", 34))
sketch2.addConstraint(Sketcher.Constraint("Horizontal", 36))
sketch2.addConstraint(Sketcher.Constraint("Vertical", 37))
sketch2.addConstraint(Sketcher.Constraint("Horizontal", 38))
sketch2.addConstraint(Sketcher.Constraint("Vertical", 39))
sketch2.addConstraint(Sketcher.Constraint("Horizontal", 40))
sketch2.addConstraint(Sketcher.Constraint("Vertical", 41))
sketch2.addConstraint(Sketcher.Constraint("Horizontal", 42))
sketch2.addConstraint(Sketcher.Constraint("Vertical", 43))
sketch2.addConstraint(Sketcher.Constraint("Horizontal", 44))
sketch2.addConstraint(Sketcher.Constraint("Vertical", 46))
sketch2.addConstraint(Sketcher.Constraint("Horizontal", 1, 2, 17, 2))
sketch2.addConstraint(Sketcher.Constraint("Horizontal", 18, 2, 20, 2))
sketch2.addConstraint(Sketcher.Constraint("Horizontal", 21, 2, 23, 2))
sketch2.addConstraint(Sketcher.Constraint("Horizontal", 5, 2, 25, 2))
sketch2.addConstraint(Sketcher.Constraint("Horizontal", 26, 2, 28, 2))
sketch2.addConstraint(Sketcher.Constraint("Horizontal", 24, 2, 37, 2))
sketch2.addConstraint(Sketcher.Constraint("Horizontal", 36, 2, 39, 2))
sketch2.addConstraint(Sketcher.Constraint("Horizontal", 42, 2, 44, 2))
sketch2.addConstraint(Sketcher.Constraint("Vertical", 39, 2, 42, 2))
sketch2.addConstraint(Sketcher.Constraint("Vertical", 37, 2, 45, 2))
sketch2.addConstraint(Sketcher.Constraint("Angle", 23, Q("-82.419985 deg")))
sketch2.addConstraint(Sketcher.Constraint("DistanceX", 44, 2, 44, 1, Q("5.362901 mm")))
sketch2.addConstraint(Sketcher.Constraint("DistanceY", 41, 1, 41, 2, Q("1.845299 mm")))
sketch2.addConstraint(Sketcher.Constraint("DistanceX", 0, 2, 18, 2, Q("25.845 mm")))
sketch2.addConstraint(Sketcher.Constraint("DistanceX", 7, 1, 7, 2, Q("1.265039 mm")))
sketch2.addConstraint(Sketcher.Constraint("DistanceX", 18, 1, 18, 2, Q("1.625449 mm")))
sketch2.addConstraint(Sketcher.Constraint("DistanceX", 36, 1, 36, 2, Q("8.534509 mm")))
sketch2.addConstraint(Sketcher.Constraint("DistanceX", 40, 1, 40, 2, Q("2.075962 mm")))
sketch2.addConstraint(Sketcher.Constraint("DistanceY", 43, 1, 43, 2, Q("12.455769 mm")))
sketch2.addConstraint(Sketcher.Constraint("DistanceY", 46, 2, 46, 1, Q("7.813689 mm")))
sketch2.addConstraint(Sketcher.Constraint("DistanceX", -1, 1, 27, 2, Q("7.1944 mm")))
sketch2.addConstraint(Sketcher.Constraint("DistanceX", 36, 2, 40, 2, Q("3.690598 mm")))
sketch2.addConstraint(Sketcher.Constraint("Distance", 17, Q("18.14776 mm")))
sketch2.addConstraint(Sketcher.Constraint("Distance", 19, Q("13.088158 mm")))
sketch2.addConstraint(Sketcher.Constraint("Distance", 22, Q("14.48367 mm")))
sketch2.addConstraint(Sketcher.Constraint("Distance", 23, Q("13.060051 mm")))
sketch2.addConstraint(Sketcher.Constraint("Distance", 25, Q("18.149652 mm")))
sketch2.addConstraint(Sketcher.Constraint("Distance", 27, Q("16.517772 mm")))
sketch2.addConstraint(Sketcher.Constraint("Distance", 35, Q("17.348659 mm")))
sketch2.addConstraint(Sketcher.Constraint("DistanceX", 1, 1, 1, 2, Q("5.575543 mm")))
sketch2.addConstraint(Sketcher.Constraint("DistanceX", 21, 1, 21, 2, Q("0.364014 mm")))
sketch2.addConstraint(Sketcher.Constraint("DistanceX", 24, 1, 24, 2, Q("1.621845 mm")))
sketch2.addConstraint(Sketcher.Constraint("DistanceX", 26, 2, 26, 1, Q("0.234266 mm")))
sketch2.addConstraint(Sketcher.Constraint("DistanceX", 29, 2, 29, 1, Q("0.230662 mm")))
sketch2.addConstraint(Sketcher.Constraint("DistanceY", 37, 2, 37, 1, Q("4.151923 mm")))
sketch2.addConstraint(Sketcher.Constraint("DistanceX", -1, 1, 19, 2, Q("0.505191 mm")))
sketch2.addConstraint(Sketcher.Constraint("DistanceX", -1, 1, 21, 2, Q("7.389021 mm")))
sketch2.addConstraint(Sketcher.Constraint("DistanceX", -1, 1, 38, 2, Q("36.14253 mm")))
pocket1 = body.newObject("PartDesign::Pocket", "Pocket")
pocket1.Profile = sketch2
pocket1.Length = 1.4

doc.recompute()
